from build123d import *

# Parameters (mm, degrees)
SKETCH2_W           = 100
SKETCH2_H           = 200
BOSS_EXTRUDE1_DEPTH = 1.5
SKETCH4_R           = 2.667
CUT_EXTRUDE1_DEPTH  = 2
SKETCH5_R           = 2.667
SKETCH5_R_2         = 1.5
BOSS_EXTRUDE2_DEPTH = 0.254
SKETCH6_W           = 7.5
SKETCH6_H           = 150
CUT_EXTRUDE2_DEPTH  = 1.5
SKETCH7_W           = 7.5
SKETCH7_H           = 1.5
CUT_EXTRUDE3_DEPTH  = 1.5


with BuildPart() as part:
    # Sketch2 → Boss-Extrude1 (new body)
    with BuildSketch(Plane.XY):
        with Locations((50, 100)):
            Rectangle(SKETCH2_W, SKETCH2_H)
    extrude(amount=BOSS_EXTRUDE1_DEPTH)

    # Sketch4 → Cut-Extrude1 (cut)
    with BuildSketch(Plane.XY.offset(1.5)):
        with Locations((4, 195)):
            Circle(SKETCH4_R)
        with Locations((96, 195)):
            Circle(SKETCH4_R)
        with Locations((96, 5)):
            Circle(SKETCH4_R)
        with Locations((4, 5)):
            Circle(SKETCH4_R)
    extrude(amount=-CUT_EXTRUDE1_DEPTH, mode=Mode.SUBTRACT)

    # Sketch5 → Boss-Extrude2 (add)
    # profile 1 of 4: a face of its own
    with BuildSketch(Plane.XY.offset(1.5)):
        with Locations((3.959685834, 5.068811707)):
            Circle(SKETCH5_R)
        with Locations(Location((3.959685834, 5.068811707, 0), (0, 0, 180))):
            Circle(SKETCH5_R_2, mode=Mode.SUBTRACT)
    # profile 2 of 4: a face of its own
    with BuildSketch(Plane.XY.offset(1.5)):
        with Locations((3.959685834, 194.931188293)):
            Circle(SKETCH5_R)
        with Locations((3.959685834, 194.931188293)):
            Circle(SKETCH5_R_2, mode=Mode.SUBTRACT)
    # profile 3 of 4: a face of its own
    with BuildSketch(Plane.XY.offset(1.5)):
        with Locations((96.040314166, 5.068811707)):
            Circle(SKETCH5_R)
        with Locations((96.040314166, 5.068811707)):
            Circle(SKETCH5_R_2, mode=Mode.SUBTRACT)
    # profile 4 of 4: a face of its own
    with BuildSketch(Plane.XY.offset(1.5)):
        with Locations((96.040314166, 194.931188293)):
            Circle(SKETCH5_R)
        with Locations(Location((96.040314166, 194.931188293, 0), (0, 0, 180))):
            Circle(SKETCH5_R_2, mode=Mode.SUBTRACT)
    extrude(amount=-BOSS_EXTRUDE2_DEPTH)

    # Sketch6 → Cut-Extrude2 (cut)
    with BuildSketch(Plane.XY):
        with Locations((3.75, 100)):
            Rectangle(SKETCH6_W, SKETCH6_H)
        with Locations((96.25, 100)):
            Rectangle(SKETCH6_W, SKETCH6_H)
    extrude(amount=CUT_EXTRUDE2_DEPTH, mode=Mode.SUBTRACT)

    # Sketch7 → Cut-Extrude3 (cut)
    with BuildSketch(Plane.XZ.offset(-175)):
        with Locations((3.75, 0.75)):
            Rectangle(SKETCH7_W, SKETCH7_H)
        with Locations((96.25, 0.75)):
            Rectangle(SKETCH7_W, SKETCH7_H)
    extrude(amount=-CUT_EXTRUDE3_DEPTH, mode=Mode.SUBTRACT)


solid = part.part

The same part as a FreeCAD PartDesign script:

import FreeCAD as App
import Part
import Sketcher

V = App.Vector


def add_polygon(sketch, points):
    """Adds a closed chain of lines whose ends are joined by coincident constraints."""
    first, n = sketch.GeometryCount, len(points)
    for a, b in zip(points, points[1:] + points[:1]):
        sketch.addGeometry(Part.LineSegment(App.Vector(*a, 0), App.Vector(*b, 0)), False)
    for i in range(n):
        sketch.addConstraint(Sketcher.Constraint("Coincident", first + i, 2, first + (i + 1) % n, 1))

doc = App.newDocument("Part")
body = doc.addObject("PartDesign::Body", "Body")

sketch1 = body.newObject("Sketcher::SketchObject", "Sketch")
sketch1.AttachmentSupport = (doc.getObject("XY_Plane"), [""])
sketch1.MapMode = "FlatFace"
add_polygon(sketch1, [(0, 200), (0, 0), (100, 0), (100, 200)])
sketch1.addConstraint([
    Sketcher.Constraint("Vertical", 0),
    Sketcher.Constraint("Horizontal", 1),
    Sketcher.Constraint("Vertical", 2),
    Sketcher.Constraint("Horizontal", 3),
    Sketcher.Constraint("Coincident", 0, 2, -1, 1),
    Sketcher.Constraint("DistanceX", 1, 1, 1, 2, 100.0),
    Sketcher.Constraint("DistanceY", 0, 2, 0, 1, 200.0),
])
pad1 = body.newObject("PartDesign::Pad", "Pad")
pad1.Profile = sketch1
pad1.Length = 1.5

sketch2 = body.newObject("Sketcher::SketchObject", "Sketch001")
sketch2.AttachmentSupport = (doc.getObject("XY_Plane"), [""])
sketch2.MapMode = "FlatFace"
sketch2.AttachmentOffset = App.Placement(V(0, 0, 1.5), App.Rotation())
sketch2.addGeometry([
    Part.Circle(V(4, 195, 0), V(0, 0, 1), 2.667),
    Part.Circle(V(96, 195, 0), V(0, 0, 1), 2.667),
    Part.Circle(V(96, 5, 0), V(0, 0, 1), 2.667),
    Part.Circle(V(4, 5, 0), V(0, 0, 1), 2.667),
], False)
sketch2.addConstraint([
    Sketcher.Constraint("Equal", 0, 1),
    Sketcher.Constraint("Equal", 1, 2),
    Sketcher.Constraint("Equal", 2, 3),
    Sketcher.Constraint("Horizontal", 0, 3, 1, 3),
    Sketcher.Constraint("Horizontal", 2, 3, 3, 3),
    Sketcher.Constraint("Vertical", 1, 3, 2, 3),
    Sketcher.Constraint("Vertical", 0, 3, 3, 3),
    Sketcher.Constraint("Diameter", 0, 5.334),
    Sketcher.Constraint("DistanceX", -1, 1, 0, 3, 4.0),
    Sketcher.Constraint("DistanceY", -1, 1, 0, 3, 195.0),
    Sketcher.Constraint("DistanceX", -1, 1, 1, 3, 96.0),
    Sketcher.Constraint("DistanceY", -1, 1, 2, 3, 5.0),
])
pocket1 = body.newObject("PartDesign::Pocket", "Pocket")
pocket1.Profile = sketch2
pocket1.Length = 2

sketch3 = body.newObject("Sketcher::SketchObject", "Sketch002")
sketch3.AttachmentSupport = (doc.getObject("XY_Plane"), [""])
sketch3.MapMode = "FlatFace"
sketch3.AttachmentOffset = App.Placement(V(0, 0, 1.5), App.Rotation())
sketch3.addGeometry([
    Part.Circle(V(3.959686, 5.068812, 0), V(0, 0, 1), 2.667),
    Part.Circle(V(3.959686, 5.068812, 0), V(0, 0, 1), 1.5),
    Part.Circle(V(3.959686, 194.931188, 0), V(0, 0, 1), 2.667),
    Part.Circle(V(3.959686, 194.931188, 0), V(0, 0, 1), 1.5),
    Part.Circle(V(96.040314, 5.068812, 0), V(0, 0, 1), 2.667),
    Part.Circle(V(96.040314, 5.068812, 0), V(0, 0, 1), 1.5),
    Part.Circle(V(96.040314, 194.931188, 0), V(0, 0, 1), 2.667),
    Part.Circle(V(96.040314, 194.931188, 0), V(0, 0, 1), 1.5),
], False)
sketch3.addConstraint([
    Sketcher.Constraint("Coincident", 1, 3, 0, 3),
    Sketcher.Constraint("Coincident", 3, 3, 2, 3),
    Sketcher.Constraint("Coincident", 5, 3, 4, 3),
    Sketcher.Constraint("Coincident", 7, 3, 6, 3),
    Sketcher.Constraint("Equal", 0, 2),
    Sketcher.Constraint("Equal", 1, 3),
    Sketcher.Constraint("Equal", 2, 4),
    Sketcher.Constraint("Equal", 3, 5),
    Sketcher.Constraint("Equal", 4, 6),
    Sketcher.Constraint("Equal", 5, 7),
    Sketcher.Constraint("Horizontal", 1, 3, 4, 3),
    Sketcher.Constraint("Horizontal", 3, 3, 6, 3),
    Sketcher.Constraint("Vertical", 1, 3, 2, 3),
    Sketcher.Constraint("Vertical", 5, 3, 6, 3),
    Sketcher.Constraint("Diameter", 1, 3.0),
    Sketcher.Constraint("Diameter", 0, 5.334),
    Sketcher.Constraint("DistanceY", -1, 1, 0, 3, 5.068812),
    Sketcher.Constraint("DistanceY", -1, 1, 2, 3, 194.931188),
    Sketcher.Constraint("DistanceX", 0, 3, 4, 3, 92.080628),
    Sketcher.Constraint("DistanceX", -1, 1, 0, 3, 3.959686),
])
pad2 = body.newObject("PartDesign::Pad", "Pad001")
pad2.Profile = sketch3
pad2.Length = 0.254
pad2.Reversed = True

sketch4 = body.newObject("Sketcher::SketchObject", "Sketch003")
sketch4.AttachmentSupport = (doc.getObject("XY_Plane"), [""])
sketch4.MapMode = "FlatFace"
add_polygon(sketch4, [(0, 175), (0, 25), (7.5, 25), (7.5, 175)])
add_polygon(sketch4, [(92.5, 175), (92.5, 25), (100, 25), (100, 175)])
sketch4.addConstraint([
    Sketcher.Constraint("Vertical", 0),
    Sketcher.Constraint("Horizontal", 1),
    Sketcher.Constraint("Vertical", 2),
    Sketcher.Constraint("Horizontal", 3),
    Sketcher.Constraint("Vertical", 4),
    Sketcher.Constraint("Horizontal", 5),
    Sketcher.Constraint("Vertical", 6),
    Sketcher.Constraint("Horizontal", 7),
    Sketcher.Constraint("PointOnObject", 0, 2, -2),
    Sketcher.Constraint("Horizontal", 1, 2, 4, 2),
    Sketcher.Constraint("Horizontal", 3, 2, 6, 2),
    Sketcher.Constraint("Equal", 3, 5),
    Sketcher.Constraint("DistanceY", 0, 2, 0, 1, 150.0),
    Sketcher.Constraint("DistanceX", 1, 1, 1, 2, 7.5),
    Sketcher.Constraint("DistanceY", -1, 1, 0, 2, 25.0),
    Sketcher.Constraint("DistanceX", -1, 1, 5, 2, 100.0),
])
pocket2 = body.newObject("PartDesign::Pocket", "Pocket001")
pocket2.Profile = sketch4
pocket2.Length = 1.5
pocket2.Reversed = True

sketch5 = body.newObject("Sketcher::SketchObject", "Sketch004")
sketch5.AttachmentSupport = (doc.getObject("XZ_Plane"), [""])
sketch5.MapMode = "FlatFace"
sketch5.AttachmentOffset = App.Placement(V(0, 0, -175), App.Rotation())
add_polygon(sketch5, [(0, 1.5), (0, 0), (7.5, 0), (7.5, 1.5)])
add_polygon(sketch5, [(92.5, 1.5), (92.5, 0), (100, 0), (100, 1.5)])
sketch5.addConstraint([
    Sketcher.Constraint("Vertical", 0),
    Sketcher.Constraint("Horizontal", 1),
    Sketcher.Constraint("Vertical", 2),
    Sketcher.Constraint("Horizontal", 3),
    Sketcher.Constraint("Vertical", 4),
    Sketcher.Constraint("Horizontal", 5),
    Sketcher.Constraint("Vertical", 6),
    Sketcher.Constraint("Horizontal", 7),
    Sketcher.Constraint("Coincident", 0, 2, -1, 1),
    Sketcher.Constraint("PointOnObject", 4, 2, -1),
    Sketcher.Constraint("Horizontal", 3, 2, 6, 2),
    Sketcher.Constraint("Equal", 3, 5),
    Sketcher.Constraint("DistanceX", 1, 1, 1, 2, 7.5),
    Sketcher.Constraint("DistanceY", 0, 2, 0, 1, 1.5),
    Sketcher.Constraint("DistanceX", -1, 1, 5, 2, 100.0),
])
pocket3 = body.newObject("PartDesign::Pocket", "Pocket002")
pocket3.Profile = sketch5
pocket3.Length = 1.5

doc.recompute()
